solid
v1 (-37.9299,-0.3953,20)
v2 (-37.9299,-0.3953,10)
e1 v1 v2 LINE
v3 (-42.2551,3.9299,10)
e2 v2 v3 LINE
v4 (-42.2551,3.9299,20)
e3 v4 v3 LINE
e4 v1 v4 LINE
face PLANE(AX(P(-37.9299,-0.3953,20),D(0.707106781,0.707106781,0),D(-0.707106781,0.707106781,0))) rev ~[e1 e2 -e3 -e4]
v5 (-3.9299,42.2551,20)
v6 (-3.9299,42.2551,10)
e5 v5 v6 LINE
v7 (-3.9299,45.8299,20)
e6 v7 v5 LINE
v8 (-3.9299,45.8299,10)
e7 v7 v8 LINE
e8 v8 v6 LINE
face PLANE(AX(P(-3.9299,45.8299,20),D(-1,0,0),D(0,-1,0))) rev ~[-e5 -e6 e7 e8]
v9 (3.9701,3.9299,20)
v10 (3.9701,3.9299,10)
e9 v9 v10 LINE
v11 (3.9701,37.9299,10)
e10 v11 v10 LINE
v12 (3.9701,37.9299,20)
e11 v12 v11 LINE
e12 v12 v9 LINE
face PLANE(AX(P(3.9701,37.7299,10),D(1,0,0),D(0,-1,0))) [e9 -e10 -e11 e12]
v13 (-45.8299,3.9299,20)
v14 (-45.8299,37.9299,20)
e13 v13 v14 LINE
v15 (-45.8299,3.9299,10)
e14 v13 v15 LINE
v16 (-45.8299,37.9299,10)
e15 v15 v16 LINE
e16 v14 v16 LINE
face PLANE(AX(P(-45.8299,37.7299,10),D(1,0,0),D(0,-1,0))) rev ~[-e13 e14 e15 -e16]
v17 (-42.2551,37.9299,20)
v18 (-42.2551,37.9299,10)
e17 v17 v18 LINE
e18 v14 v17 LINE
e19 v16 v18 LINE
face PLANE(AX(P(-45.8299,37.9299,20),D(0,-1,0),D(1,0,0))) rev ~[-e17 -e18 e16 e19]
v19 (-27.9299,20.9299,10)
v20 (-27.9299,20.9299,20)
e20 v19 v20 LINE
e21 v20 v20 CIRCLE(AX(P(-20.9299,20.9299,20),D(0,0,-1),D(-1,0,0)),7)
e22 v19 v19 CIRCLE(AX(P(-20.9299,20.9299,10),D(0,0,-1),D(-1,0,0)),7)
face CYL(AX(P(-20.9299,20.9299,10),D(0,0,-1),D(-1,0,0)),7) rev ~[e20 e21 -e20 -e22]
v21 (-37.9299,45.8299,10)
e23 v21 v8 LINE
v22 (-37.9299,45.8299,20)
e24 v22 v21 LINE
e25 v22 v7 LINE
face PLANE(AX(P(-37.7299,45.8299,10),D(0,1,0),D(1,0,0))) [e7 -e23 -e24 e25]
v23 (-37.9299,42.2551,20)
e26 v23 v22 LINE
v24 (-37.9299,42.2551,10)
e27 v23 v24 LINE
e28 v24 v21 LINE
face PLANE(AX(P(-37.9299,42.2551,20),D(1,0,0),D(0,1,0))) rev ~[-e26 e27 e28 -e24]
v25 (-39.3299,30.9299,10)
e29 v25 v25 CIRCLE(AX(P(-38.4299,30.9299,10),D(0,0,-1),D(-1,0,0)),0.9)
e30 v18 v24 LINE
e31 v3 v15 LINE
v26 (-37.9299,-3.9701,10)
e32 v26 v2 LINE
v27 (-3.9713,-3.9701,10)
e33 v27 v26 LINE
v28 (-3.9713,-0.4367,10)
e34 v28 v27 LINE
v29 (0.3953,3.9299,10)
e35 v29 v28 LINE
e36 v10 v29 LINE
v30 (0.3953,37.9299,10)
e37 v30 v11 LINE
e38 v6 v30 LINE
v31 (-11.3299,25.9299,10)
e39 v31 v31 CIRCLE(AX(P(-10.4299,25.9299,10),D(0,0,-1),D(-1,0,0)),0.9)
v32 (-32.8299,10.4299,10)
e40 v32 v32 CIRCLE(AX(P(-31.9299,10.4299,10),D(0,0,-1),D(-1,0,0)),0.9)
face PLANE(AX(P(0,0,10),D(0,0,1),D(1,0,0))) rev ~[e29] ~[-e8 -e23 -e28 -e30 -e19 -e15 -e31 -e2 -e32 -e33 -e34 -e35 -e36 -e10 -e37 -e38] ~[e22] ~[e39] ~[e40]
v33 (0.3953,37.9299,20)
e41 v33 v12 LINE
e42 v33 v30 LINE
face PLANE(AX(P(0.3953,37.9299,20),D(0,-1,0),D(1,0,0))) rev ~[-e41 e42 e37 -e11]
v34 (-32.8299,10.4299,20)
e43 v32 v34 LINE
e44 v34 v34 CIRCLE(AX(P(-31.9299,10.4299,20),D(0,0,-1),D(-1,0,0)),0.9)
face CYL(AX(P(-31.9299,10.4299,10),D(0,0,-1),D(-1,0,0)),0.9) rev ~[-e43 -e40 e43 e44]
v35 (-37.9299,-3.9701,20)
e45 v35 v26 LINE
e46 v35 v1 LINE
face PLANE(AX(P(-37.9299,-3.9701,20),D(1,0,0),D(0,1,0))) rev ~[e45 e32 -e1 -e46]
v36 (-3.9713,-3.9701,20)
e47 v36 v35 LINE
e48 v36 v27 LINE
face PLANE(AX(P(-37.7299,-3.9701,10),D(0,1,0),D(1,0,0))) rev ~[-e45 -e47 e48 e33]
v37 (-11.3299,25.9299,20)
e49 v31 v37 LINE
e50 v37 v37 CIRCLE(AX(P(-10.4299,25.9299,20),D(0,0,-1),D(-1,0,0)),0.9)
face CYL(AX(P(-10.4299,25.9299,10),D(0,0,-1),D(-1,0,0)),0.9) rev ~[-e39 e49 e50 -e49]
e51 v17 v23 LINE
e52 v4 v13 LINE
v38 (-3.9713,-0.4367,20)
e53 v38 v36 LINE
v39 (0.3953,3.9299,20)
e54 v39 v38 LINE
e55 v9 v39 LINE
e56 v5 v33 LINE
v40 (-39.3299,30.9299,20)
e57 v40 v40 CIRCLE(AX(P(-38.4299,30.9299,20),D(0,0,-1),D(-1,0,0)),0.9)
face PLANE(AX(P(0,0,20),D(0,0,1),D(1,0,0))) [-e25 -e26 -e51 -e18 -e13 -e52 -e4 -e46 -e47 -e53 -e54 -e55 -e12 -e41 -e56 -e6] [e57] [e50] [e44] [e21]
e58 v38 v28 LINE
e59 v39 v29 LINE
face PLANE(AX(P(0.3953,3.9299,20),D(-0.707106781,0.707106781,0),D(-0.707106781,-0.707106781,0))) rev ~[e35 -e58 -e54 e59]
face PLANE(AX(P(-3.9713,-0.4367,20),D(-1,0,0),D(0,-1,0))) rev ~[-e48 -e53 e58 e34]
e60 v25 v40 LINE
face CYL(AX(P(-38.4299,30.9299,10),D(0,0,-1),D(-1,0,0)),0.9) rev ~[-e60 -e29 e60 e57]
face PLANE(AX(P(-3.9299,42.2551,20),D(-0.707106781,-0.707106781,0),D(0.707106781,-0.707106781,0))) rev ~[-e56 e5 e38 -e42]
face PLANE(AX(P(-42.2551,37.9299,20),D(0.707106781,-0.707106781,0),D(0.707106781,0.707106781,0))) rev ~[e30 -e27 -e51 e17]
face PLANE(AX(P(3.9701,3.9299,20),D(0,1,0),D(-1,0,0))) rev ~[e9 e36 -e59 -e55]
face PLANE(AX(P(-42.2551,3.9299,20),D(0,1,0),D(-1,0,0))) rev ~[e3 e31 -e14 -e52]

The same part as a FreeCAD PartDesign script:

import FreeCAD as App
import Part
import Sketcher

V = App.Vector
Q = App.Units.Quantity

doc = App.newDocument("Part")
body = doc.addObject("PartDesign::Body", "Body")

sketch1 = body.newObject("Sketcher::SketchObject", "Sketch")
sketch1.AttachmentSupport = (doc.getObject("XY_Plane"), [""])
sketch1.MapMode = "FlatFace"
sketch1.AttachmentOffset = App.Placement(V(0, 0, 10), App.Rotation())
sketch1.addGeometry([
    Part.LineSegment(V(-4.171, -0.354, 0), V(0.312, 4.13, 0)),
    Part.LineSegment(V(0.312, 4.13, 0), V(3.97, 4.13, 0)),
    Part.LineSegment(V(3.97, 4.13, 0), V(3.97, 37.73, 0)),
    Part.LineSegment(V(3.97, 37.73, 0), V(0.312, 37.73, 0)),
    Part.LineSegment(V(0.312, 37.73, 0), V(-4.13, 42.172, 0)),
    Part.LineSegment(V(-4.13, 42.172, 0), V(-4.13, 45.83, 0)),
    Part.LineSegment(V(-4.13, 45.83, 0), V(-37.73, 45.83, 0)),
    Part.LineSegment(V(-37.73, 45.83, 0), V(-37.73, 42.172, 0)),
    Part.LineSegment(V(-37.73, 42.172, 0), V(-42.172, 37.73, 0)),
    Part.LineSegment(V(-42.172, 37.73, 0), V(-45.83, 37.73, 0)),
    Part.LineSegment(V(-45.83, 37.73, 0), V(-45.83, 4.13, 0)),
    Part.LineSegment(V(-45.83, 4.13, 0), V(-42.172, 4.13, 0)),
    Part.LineSegment(V(-42.172, 4.13, 0), V(-37.689, -0.354, 0)),
    Part.LineSegment(V(-37.689, -0.354, 0), V(-37.73, -0.354, 0)),
    Part.LineSegment(V(-37.73, -0.354, 0), V(-37.73, -3.97, 0)),
    Part.LineSegment(V(-37.73, -3.97, 0), V(-4.171, -3.97, 0)),
    Part.LineSegment(V(-4.171, -3.97, 0), V(-4.171, -0.354, 0)),
], False)
sketch1.addConstraint([
    Sketcher.Constraint("Coincident", 0, 2, 1, 1),
    Sketcher.Constraint("Coincident", 1, 2, 2, 1),
    Sketcher.Constraint("Coincident", 2, 2, 3, 1),
    Sketcher.Constraint("Coincident", 3, 2, 4, 1),
    Sketcher.Constraint("Coincident", 4, 2, 5, 1),
    Sketcher.Constraint("Coincident", 5, 2, 6, 1),
    Sketcher.Constraint("Coincident", 6, 2, 7, 1),
    Sketcher.Constraint("Coincident", 7, 2, 8, 1),
    Sketcher.Constraint("Coincident", 8, 2, 9, 1),
    Sketcher.Constraint("Coincident", 9, 2, 10, 1),
    Sketcher.Constraint("Coincident", 10, 2, 11, 1),
    Sketcher.Constraint("Coincident", 11, 2, 12, 1),
    Sketcher.Constraint("Coincident", 12, 2, 13, 1),
    Sketcher.Constraint("Coincident", 13, 2, 14, 1),
    Sketcher.Constraint("Coincident", 14, 2, 15, 1),
    Sketcher.Constraint("Coincident", 15, 2, 16, 1),
    Sketcher.Constraint("Coincident", 16, 2, 0, 1),
    Sketcher.Constraint("Horizontal", 1),
    Sketcher.Constraint("Vertical", 2),
    Sketcher.Constraint("Horizontal", 3),
    Sketcher.Constraint("Vertical", 5),
    Sketcher.Constraint("Horizontal", 6),
    Sketcher.Constraint("Vertical", 7),
    Sketcher.Constraint("Horizontal", 9),
    Sketcher.Constraint("Vertical", 10),
    Sketcher.Constraint("Horizontal", 11),
    Sketcher.Constraint("Horizontal", 13),
    Sketcher.Constraint("Vertical", 14),
    Sketcher.Constraint("Horizontal", 15),
    Sketcher.Constraint("Vertical", 16),
    Sketcher.Constraint("Perpendicular", 0, 4),
    Sketcher.Constraint("Perpendicular", 4, 8),
    Sketcher.Constraint("Perpendicular", 8, 12),
    Sketcher.Constraint("Horizontal", 4, 2, 7, 2),
    Sketcher.Constraint("Horizontal", 3, 2, 8, 2),
    Sketcher.Constraint("Horizontal", 1, 2, 10, 2),
    Sketcher.Constraint("Horizontal", 13, 2, 16, 2),
    Sketcher.Constraint("Vertical", 0, 2, 3, 2),
    Sketcher.Constraint("Vertical", 8, 2, 11, 2),
    Sketcher.Constraint("Vertical", 7, 2, 13, 2),
    Sketcher.Constraint("Equal", 3, 9),
    Sketcher.Constraint("Equal", 6, 2),
    Sketcher.Constraint("Equal", 11, 5),
    Sketcher.Constraint("Equal", 4, 8),
    Sketcher.Constraint("DistanceX", 6, 2, 6, 1, Q("33.6 mm")),
    Sketcher.Constraint("DistanceX", 4, 2, 2, 2, Q("8.1 mm")),
    Sketcher.Constraint("DistanceY", 14, 2, 11, 2, Q("8.1 mm")),
    Sketcher.Constraint("DistanceY", -1, 1, 0, 2, Q("4.13 mm")),
    Sketcher.Constraint("DistanceX", -1, 1, 1, 2, Q("3.97 mm")),
    Sketcher.Constraint("Distance", 0, Q("6.341 mm")),
    Sketcher.Constraint("DistanceX", 1, 1, 1, 2, Q("3.6577 mm")),
])
pad1 = body.newObject("PartDesign::Pad", "Pad")
pad1.Profile = sketch1
pad1.Length = 10

sketch2 = body.newObject("Sketcher::SketchObject", "Sketch001")
sketch2.AttachmentSupport = (doc.getObject("XY_Plane"), [""])
sketch2.MapMode = "FlatFace"
sketch2.AttachmentOffset = App.Placement(V(0, 0, 20), App.Rotation())
sketch2.addGeometry([
    Part.LineSegment(V(3.97, 3.93, 0), V(3.97, 4.13, 0)),
    Part.LineSegment(V(3.97, 4.13, 0), V(0.312, 4.13, 0)),
    Part.LineSegment(V(0.312, 4.13, 0), V(-4.171, -0.354, 0)),
    Part.LineSegment(V(-4.171, -0.354, 0), V(-4.171, -3.97, 0)),
    Part.LineSegment(V(-4.171, -3.97, 0), V(-3.971, -3.97, 0)),
    Part.LineSegment(V(-3.971, -3.97, 0), V(-3.971, -0.437, 0)),
    Part.LineSegment(V(-3.971, -0.437, 0), V(0.395, 3.93, 0)),
    Part.LineSegment(V(0.395, 3.93, 0), V(3.97, 3.93, 0)),
    Part.LineSegment(V(-3.93, 45.83, 0), V(-4.13, 45.83, 0)),
    Part.LineSegment(V(-4.13, 45.83, 0), V(-4.13, 42.172, 0)),
    Part.LineSegment(V(-4.13, 42.172, 0), V(0.312, 37.73, 0)),
    Part.LineSegment(V(0.312, 37.73, 0), V(3.97, 37.73, 0)),
    Part.LineSegment(V(3.97, 37.73, 0), V(3.97, 37.93, 0)),
    Part.LineSegment(V(3.97, 37.93, 0), V(0.395, 37.93, 0)),
    Part.LineSegment(V(0.395, 37.93, 0), V(-3.93, 42.255, 0)),
    Part.LineSegment(V(-3.93, 42.255, 0), V(-3.93, 45.83, 0)),
    Part.LineSegment(V(-42.172, 37.73, 0), V(-37.73, 42.172, 0)),
    Part.LineSegment(V(-37.73, 42.172, 0), V(-37.73, 45.83, 0)),
    Part.LineSegment(V(-37.73, 45.83, 0), V(-37.93, 45.83, 0)),
    Part.LineSegment(V(-37.93, 45.83, 0), V(-37.93, 42.255, 0)),
    Part.LineSegment(V(-37.93, 42.255, 0), V(-42.255, 37.93, 0)),
    Part.LineSegment(V(-42.255, 37.93, 0), V(-45.83, 37.93, 0)),
    Part.LineSegment(V(-45.83, 37.93, 0), V(-45.83, 37.73, 0)),
    Part.LineSegment(V(-45.83, 37.73, 0), V(-42.172, 37.73, 0)),
    Part.LineSegment(V(-42.172, 4.13, 0), V(-45.83, 4.13, 0)),
    Part.LineSegment(V(-45.83, 4.13, 0), V(-45.83, 3.93, 0)),
    Part.LineSegment(V(-45.83, 3.93, 0), V(-42.255, 3.93, 0)),
    Part.LineSegment(V(-42.255, 3.93, 0), V(-37.93, -0.395, 0)),
    Part.LineSegment(V(-37.93, -0.395, 0), V(-37.93, -3.97, 0)),
    Part.LineSegment(V(-37.93, -3.97, 0), V(-37.73, -3.97, 0)),
    Part.LineSegment(V(-37.73, -3.97, 0), V(-37.73, -0.354, 0)),
    Part.LineSegment(V(-37.73, -0.354, 0), V(-37.688, -0.354, 0)),
    Part.LineSegment(V(-37.688, -0.354, 0), V(-42.172, 4.13, 0)),
], False)
sketch2.addConstraint([
    Sketcher.Constraint("Coincident", 0, 2, 1, 1),
    Sketcher.Constraint("Coincident", 1, 2, 2, 1),
    Sketcher.Constraint("Coincident", 2, 2, 3, 1),
    Sketcher.Constraint("Coincident", 3, 2, 4, 1),
    Sketcher.Constraint("Coincident", 4, 2, 5, 1),
    Sketcher.Constraint("Coincident", 5, 2, 6, 1),
    Sketcher.Constraint("Coincident", 6, 2, 7, 1),
    Sketcher.Constraint("Coincident", 7, 2, 0, 1),
    Sketcher.Constraint("Coincident", 8, 2, 9, 1),
    Sketcher.Constraint("Coincident", 9, 2, 10, 1),
    Sketcher.Constraint("Coincident", 10, 2, 11, 1),
    Sketcher.Constraint("Coincident", 11, 2, 12, 1),
    Sketcher.Constraint("Coincident", 12, 2, 13, 1),
    Sketcher.Constraint("Coincident", 13, 2, 14, 1),
    Sketcher.Constraint("Coincident", 14, 2, 15, 1),
    Sketcher.Constraint("Coincident", 15, 2, 8, 1),
    Sketcher.Constraint("Coincident", 16, 2, 17, 1),
    Sketcher.Constraint("Coincident", 17, 2, 18, 1),
    Sketcher.Constraint("Coincident", 18, 2, 19, 1),
    Sketcher.Constraint("Coincident", 19, 2, 20, 1),
    Sketcher.Constraint("Coincident", 20, 2, 21, 1),
    Sketcher.Constraint("Coincident", 21, 2, 22, 1),
    Sketcher.Constraint("Coincident", 22, 2, 23, 1),
    Sketcher.Constraint("Coincident", 23, 2, 16, 1),
    Sketcher.Constraint("Coincident", 24, 2, 25, 1),
    Sketcher.Constraint("Coincident", 25, 2, 26, 1),
    Sketcher.Constraint("Coincident", 26, 2, 27, 1),
    Sketcher.Constraint("Coincident", 27, 2, 28, 1),
    Sketcher.Constraint("Coincident", 28, 2, 29, 1),
    Sketcher.Constraint("Coincident", 29, 2, 30, 1),
    Sketcher.Constraint("Coincident", 30, 2, 31, 1),
    Sketcher.Constraint("Coincident", 31, 2, 32, 1),
    Sketcher.Constraint("Coincident", 32, 2, 24, 1),
    Sketcher.Constraint("Vertical", 0),
    Sketcher.Constraint("Horizontal", 1),
    Sketcher.Constraint("Vertical", 3),
    Sketcher.Constraint("Horizontal", 4),
    Sketcher.Constraint("Vertical", 5),
    Sketcher.Constraint("Horizontal", 7),
    Sketcher.Constraint("Horizontal", 8),
    Sketcher.Constraint("Vertical", 9),
    Sketcher.Constraint("Horizontal", 11),
    Sketcher.Constraint("Vertical", 12),
    Sketcher.Constraint("Horizontal", 13),
    Sketcher.Constraint("Vertical", 15),
    Sketcher.Constraint("Vertical", 17),
    Sketcher.Constraint("Horizontal", 18),
    Sketcher.Constraint("Vertical", 19),
    Sketcher.Constraint("Horizontal", 21),
    Sketcher.Constraint("Vertical", 22),
    Sketcher.Constraint("Horizontal", 23),
    Sketcher.Constraint("Horizontal", 24),
    Sketcher.Constraint("Vertical", 25),
    Sketcher.Constraint("Horizontal", 26),
    Sketcher.Constraint("Vertical", 28),
    Sketcher.Constraint("Horizontal", 29),
    Sketcher.Constraint("Vertical", 30),
    Sketcher.Constraint("Horizontal", 31),
    Sketcher.Constraint("Parallel", 2, 6),
    Sketcher.Constraint("Perpendicular", 6, 10),
    Sketcher.Constraint("Parallel", 10, 14),
    Sketcher.Constraint("Perpendicular", 14, 16),
    Sketcher.Constraint("Parallel", 16, 20),
    Sketcher.Constraint("Perpendicular", 20, 27),
    Sketcher.Constraint("Parallel", 27, 32),
    Sketcher.Constraint("Horizontal", 9, 2, 16, 2),
    Sketcher.Constraint("Horizontal", 15, 2, 17, 2),
    Sketcher.Constraint("Horizontal", 14, 2, 19, 2),
    Sketcher.Constraint("Horizontal", 13, 2, 20, 2),
    Sketcher.Constraint("Horizontal", 11, 2, 22, 2),
    Sketcher.Constraint("Horizontal", 1, 2, 24, 2),
    Sketcher.Constraint("Horizontal", 7, 2, 25, 2),
    Sketcher.Constraint("Horizontal", 4, 2, 28, 2),
    Sketcher.Constraint("Horizontal", 2, 2, 30, 2),
    Sketcher.Constraint("Vertical", 1, 2, 10, 2),
    Sketcher.Constraint("Vertical", 7, 2, 11, 2),
    Sketcher.Constraint("Vertical", 6, 2, 13, 2),
    Sketcher.Constraint("Vertical", 22, 2, 24, 2),
    Sketcher.Constraint("Vertical", 20, 2, 26, 2),
    Sketcher.Constraint("Vertical", 19, 2, 27, 2),
    Sketcher.Constraint("Vertical", 17, 2, 29, 2),
    Sketcher.Constraint("Vertical", 23, 2, 32, 2),
    Sketcher.Constraint("Equal", 4, 8),
    Sketcher.Constraint("Equal", 8, 18),
    Sketcher.Constraint("Equal", 13, 21),
    Sketcher.Constraint("Equal", 11, 23),
    Sketcher.Constraint("Equal", 29, 0),
    Sketcher.Constraint("Equal", 24, 9),
    Sketcher.Constraint("Equal", 0, 12),
    Sketcher.Constraint("Equal", 19, 28),
    Sketcher.Constraint("DistanceX", 4, 1, 4, 2, Q("0.2 mm")),
    Sketcher.Constraint("DistanceX", 18, 2, 15, 2, Q("34 mm")),
    Sketcher.Constraint("DistanceY", 25, 2, 21, 2, Q("34 mm")),
    Sketcher.Constraint("DistanceY", 3, 2, 1, 2, Q("8.1 mm")),
    Sketcher.Constraint("DistanceX", -1, 1, 0, 2, Q("3.97 mm")),
    Sketcher.Constraint("DistanceY", -1, 1, 0, 2, Q("4.13 mm")),
    Sketcher.Constraint("Distance", 2, Q("6.341 mm")),
    Sketcher.Constraint("DistanceX", 1, 2, 1, 1, Q("3.6577 mm")),
    Sketcher.Constraint("DistanceX", 7, 1, 7, 2, Q("3.5748 mm")),
])
pad2 = body.newObject("PartDesign::Pad", "Pad001")
pad2.Profile = sketch2
pad2.Length = 10
pad2.Reversed = True

sketch3 = body.newObject("Sketcher::SketchObject", "Sketch002")
sketch3.AttachmentSupport = (doc.getObject("XY_Plane"), [""])
sketch3.MapMode = "FlatFace"
sketch3.AttachmentOffset = App.Placement(V(0, 0, 10), App.Rotation())
sketch3.addGeometry(Part.Circle(V(-21, 21, 0), V(0, 0, 1), 7), False)
sketch3.addConstraint([
    Sketcher.Constraint("Diameter", 0, Q("14 mm")),
    Sketcher.Constraint("DistanceX", 0, 3, -1, 1, Q("20.93 mm")),
    Sketcher.Constraint("DistanceY", -1, 1, 0, 3, Q("20.93 mm")),
])
pocket1 = body.newObject("PartDesign::Pocket", "Pocket")
pocket1.Profile = sketch3
pocket1.Type = "ThroughAll"
pocket1.Reversed = True

sketch4 = body.newObject("Sketcher::SketchObject", "Sketch003")
sketch4.AttachmentSupport = (doc.getObject("XY_Plane"), [""])
sketch4.MapMode = "FlatFace"
sketch4.AttachmentOffset = App.Placement(V(0, 0, 10), App.Rotation())
sketch4.addGeometry([
    Part.Circle(V(-31.9, 10.4, 0), V(0, 0, 1), 0.9),
    Part.Circle(V(-38.4, 30.9, 0), V(0, 0, 1), 0.9),
    Part.Circle(V(-10.4, 25.9, 0), V(0, 0, 1), 0.9),
], False)
sketch4.addConstraint([
    Sketcher.Constraint("Equal", 0, 1),
    Sketcher.Constraint("Equal", 1, 2),
    Sketcher.Constraint("Diameter", 0, Q("1.8 mm")),
    Sketcher.Constraint("DistanceX", 1, 3, 2, 3, Q("28 mm")),
    Sketcher.Constraint("DistanceY", 2, 3, 1, 3, Q("5 mm")),
    Sketcher.Constraint("DistanceX", 1, 3, 0, 3, Q("6.5 mm")),
    Sketcher.Constraint("DistanceY", 0, 3, 1, 3, Q("20.5 mm")),
    Sketcher.Constraint("DistanceX", 0, 3, -1, 1, Q("31.93 mm")),
    Sketcher.Constraint("DistanceY", -1, 1, 0, 3, Q("10.43 mm")),
])
pocket2 = body.newObject("PartDesign::Pocket", "Pocket001")
pocket2.Profile = sketch4
pocket2.Length = 10
pocket2.Reversed = True

doc.recompute()
